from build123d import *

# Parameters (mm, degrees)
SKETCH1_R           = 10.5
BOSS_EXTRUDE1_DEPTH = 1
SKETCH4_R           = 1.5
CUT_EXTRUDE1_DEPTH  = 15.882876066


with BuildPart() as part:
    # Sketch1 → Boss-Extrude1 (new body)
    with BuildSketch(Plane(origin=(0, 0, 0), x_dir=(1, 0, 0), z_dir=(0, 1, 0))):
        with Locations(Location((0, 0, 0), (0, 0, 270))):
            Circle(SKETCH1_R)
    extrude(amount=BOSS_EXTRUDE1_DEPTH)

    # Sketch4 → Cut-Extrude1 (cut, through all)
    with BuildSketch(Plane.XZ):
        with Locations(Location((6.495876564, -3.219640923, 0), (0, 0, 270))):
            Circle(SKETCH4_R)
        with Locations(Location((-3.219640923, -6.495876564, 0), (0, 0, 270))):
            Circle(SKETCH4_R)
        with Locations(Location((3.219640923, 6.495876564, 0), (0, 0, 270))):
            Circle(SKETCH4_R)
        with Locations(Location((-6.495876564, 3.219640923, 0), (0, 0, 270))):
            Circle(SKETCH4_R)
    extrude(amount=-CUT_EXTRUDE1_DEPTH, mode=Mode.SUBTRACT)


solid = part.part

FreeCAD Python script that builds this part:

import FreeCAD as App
import Part
import Sketcher

V = App.Vector

doc = App.newDocument("Part")
body = doc.addObject("PartDesign::Body", "Body")

# Sketch on XZ plane
sketch1 = body.newObject("Sketcher::SketchObject", "Sketch")
sketch1.AttachmentSupport = (doc.getObject("XZ_Plane"), [""])
sketch1.MapMode = "FlatFace"
sketch1.addGeometry(Part.Circle(V(0, 0, 0), V(0, 0, 1), 10), False)
sketch1.addConstraint(Sketcher.Constraint("Coincident", 0, 3, -1, 1))
sketch1.addConstraint(Sketcher.Constraint("Diameter", 0, 21.0))
pad1 = body.newObject("PartDesign::Pad", "Pad")
pad1.Profile = sketch1
pad1.Length = 1
pad1.Reversed = True

# Sketch on XZ plane
sketch2 = body.newObject("Sketcher::SketchObject", "Sketch001")
sketch2.AttachmentSupport = (doc.getObject("XZ_Plane"), [""])
sketch2.MapMode = "FlatFace"
sketch2.addGeometry(Part.Circle(V(6.5, -3.2, 0), V(0, 0, 1), 1.5), False)
sketch2.addGeometry(Part.Circle(V(-3.2, -6.5, 0), V(0, 0, 1), 1.5), False)
sketch2.addGeometry(Part.Circle(V(3.2, 6.5, 0), V(0, 0, 1), 1.5), False)
sketch2.addGeometry(Part.Circle(V(-6.5, 3.2, 0), V(0, 0, 1), 1.5), False)
sketch2.addConstraint(Sketcher.Constraint("Equal", 0, 1))
sketch2.addConstraint(Sketcher.Constraint("Equal", 1, 2))
sketch2.addConstraint(Sketcher.Constraint("Equal", 2, 3))
sketch2.addConstraint(Sketcher.Constraint("Symmetric", 1, 3, 2, 3, -1, 1))
sketch2.addConstraint(Sketcher.Constraint("Symmetric", 0, 3, 3, 3, -1, 1))
sketch2.addConstraint(Sketcher.Constraint("Diameter", 0, 3.0))
sketch2.addConstraint(Sketcher.Constraint("DistanceY", 0, 3, -1, 1, 3.219641))
sketch2.addConstraint(Sketcher.Constraint("DistanceX", 1, 3, -1, 1, 3.219641))
sketch2.addConstraint(Sketcher.Constraint("DistanceX", -1, 1, 0, 3, 6.495877))
sketch2.addConstraint(Sketcher.Constraint("DistanceY", 1, 3, -1, 1, 6.495877))
pocket1 = body.newObject("PartDesign::Pocket", "Pocket")
pocket1.Profile = sketch2
pocket1.Type = "ThroughAll"

doc.recompute()
